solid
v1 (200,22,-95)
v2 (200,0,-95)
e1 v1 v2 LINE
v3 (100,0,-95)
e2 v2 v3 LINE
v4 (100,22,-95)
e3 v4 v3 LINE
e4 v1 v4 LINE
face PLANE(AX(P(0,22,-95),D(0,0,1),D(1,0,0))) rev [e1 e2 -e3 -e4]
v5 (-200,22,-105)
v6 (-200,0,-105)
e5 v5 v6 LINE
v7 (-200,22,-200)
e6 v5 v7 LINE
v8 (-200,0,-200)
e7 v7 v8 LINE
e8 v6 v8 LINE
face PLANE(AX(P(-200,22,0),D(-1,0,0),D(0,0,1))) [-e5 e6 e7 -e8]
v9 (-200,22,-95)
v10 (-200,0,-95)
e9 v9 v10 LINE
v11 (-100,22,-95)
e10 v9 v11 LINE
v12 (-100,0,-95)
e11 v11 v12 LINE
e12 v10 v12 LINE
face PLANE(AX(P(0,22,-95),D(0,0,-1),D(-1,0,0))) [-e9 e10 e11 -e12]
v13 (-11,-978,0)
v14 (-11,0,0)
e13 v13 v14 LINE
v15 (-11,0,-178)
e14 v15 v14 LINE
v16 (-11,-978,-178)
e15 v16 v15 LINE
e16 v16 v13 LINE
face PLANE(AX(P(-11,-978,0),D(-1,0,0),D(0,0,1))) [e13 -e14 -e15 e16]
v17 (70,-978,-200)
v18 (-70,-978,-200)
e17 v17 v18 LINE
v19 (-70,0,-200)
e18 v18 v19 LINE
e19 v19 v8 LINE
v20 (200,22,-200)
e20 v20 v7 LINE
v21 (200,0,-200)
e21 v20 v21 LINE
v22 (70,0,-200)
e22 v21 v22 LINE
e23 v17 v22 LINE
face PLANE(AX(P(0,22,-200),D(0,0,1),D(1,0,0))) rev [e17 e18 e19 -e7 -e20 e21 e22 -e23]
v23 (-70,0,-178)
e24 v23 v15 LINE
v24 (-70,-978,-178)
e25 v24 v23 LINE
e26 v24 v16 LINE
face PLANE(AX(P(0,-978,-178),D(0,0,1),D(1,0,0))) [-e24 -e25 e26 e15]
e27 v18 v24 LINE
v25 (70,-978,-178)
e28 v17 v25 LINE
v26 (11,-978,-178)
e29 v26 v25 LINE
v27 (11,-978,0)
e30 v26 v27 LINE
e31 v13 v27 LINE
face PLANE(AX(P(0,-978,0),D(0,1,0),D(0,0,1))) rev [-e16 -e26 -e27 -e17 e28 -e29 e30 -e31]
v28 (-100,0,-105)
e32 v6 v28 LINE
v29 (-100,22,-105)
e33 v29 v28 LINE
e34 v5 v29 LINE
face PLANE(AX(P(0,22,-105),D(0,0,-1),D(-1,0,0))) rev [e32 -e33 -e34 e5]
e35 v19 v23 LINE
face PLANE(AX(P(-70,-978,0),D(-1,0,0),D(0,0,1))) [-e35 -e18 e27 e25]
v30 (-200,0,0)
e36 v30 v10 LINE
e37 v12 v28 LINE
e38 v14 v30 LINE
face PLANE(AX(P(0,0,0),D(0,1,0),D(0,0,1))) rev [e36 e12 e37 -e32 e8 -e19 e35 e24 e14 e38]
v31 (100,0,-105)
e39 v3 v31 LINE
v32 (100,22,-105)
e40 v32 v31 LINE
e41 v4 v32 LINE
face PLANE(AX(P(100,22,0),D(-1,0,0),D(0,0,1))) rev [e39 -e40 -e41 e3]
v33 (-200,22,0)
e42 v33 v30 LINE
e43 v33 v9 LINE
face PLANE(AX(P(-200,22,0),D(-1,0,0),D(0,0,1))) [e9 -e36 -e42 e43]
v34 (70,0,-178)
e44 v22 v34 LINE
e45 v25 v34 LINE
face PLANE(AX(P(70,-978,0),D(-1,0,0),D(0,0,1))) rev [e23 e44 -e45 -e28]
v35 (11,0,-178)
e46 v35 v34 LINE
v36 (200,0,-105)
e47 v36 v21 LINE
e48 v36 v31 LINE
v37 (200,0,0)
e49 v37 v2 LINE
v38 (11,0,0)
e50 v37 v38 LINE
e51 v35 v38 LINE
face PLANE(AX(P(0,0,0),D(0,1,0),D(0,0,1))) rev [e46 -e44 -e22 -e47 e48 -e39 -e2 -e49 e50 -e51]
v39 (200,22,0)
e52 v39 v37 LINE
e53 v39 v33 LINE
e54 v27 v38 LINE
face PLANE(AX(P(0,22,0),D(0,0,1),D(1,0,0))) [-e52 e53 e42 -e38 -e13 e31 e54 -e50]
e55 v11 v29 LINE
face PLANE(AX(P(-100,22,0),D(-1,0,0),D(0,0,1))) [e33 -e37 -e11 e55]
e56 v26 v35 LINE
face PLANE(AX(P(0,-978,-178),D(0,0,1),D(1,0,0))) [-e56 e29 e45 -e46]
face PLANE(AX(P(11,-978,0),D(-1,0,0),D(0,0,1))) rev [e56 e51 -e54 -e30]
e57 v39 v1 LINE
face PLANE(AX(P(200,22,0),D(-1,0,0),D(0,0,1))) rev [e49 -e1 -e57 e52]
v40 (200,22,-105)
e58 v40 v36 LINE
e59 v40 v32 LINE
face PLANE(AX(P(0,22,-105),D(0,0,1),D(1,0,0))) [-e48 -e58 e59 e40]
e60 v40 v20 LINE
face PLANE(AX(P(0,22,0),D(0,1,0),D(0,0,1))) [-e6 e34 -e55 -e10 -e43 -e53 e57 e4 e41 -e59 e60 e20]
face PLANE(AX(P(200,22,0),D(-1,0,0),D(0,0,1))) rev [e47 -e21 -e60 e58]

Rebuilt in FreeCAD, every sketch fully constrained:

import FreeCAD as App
import Part
import Sketcher

V = App.Vector

doc = App.newDocument("Part")
params = doc.addObject("Spreadsheet::Sheet", "Params")
for row, (alias, value) in enumerate([
    ("sketch1_width", "200 mm"),
    ("sketch1_width2", "100 mm"),
    ("sketch1_height", "95 mm"),
    ("pad1_length", "22 mm"),
    ("sketch2_width", "140 mm"),
    ("sketch2_width2", "59 mm"),
    ("sketch2_height", "178 mm"),
    ("pad2_length", "1000 mm"),
], start=1):
    params.set(f"A{row}", alias)
    params.set(f"B{row}", "=" + value)
    params.setAlias(f"B{row}", alias)

body = doc.addObject("PartDesign::Body", "Body")

sketch1 = doc.addObject("Sketcher::SketchObject", "Sketch")
body.addObject(sketch1)
sketch1.AttachmentSupport = (doc.XZ_Plane, [""])
sketch1.MapMode = "FlatFace"
sketch1.addGeometry([
    Part.LineSegment(V(-200, 0, 0), V(0, 0, 0)),
    Part.LineSegment(V(0, 0, 0), V(0, -200, 0)),
    Part.LineSegment(V(0, -200, 0), V(-200, -200, 0)),
    Part.LineSegment(V(-200, -200, 0), V(-200, -105, 0)),
    Part.LineSegment(V(-200, -105, 0), V(-100, -105, 0)),
    Part.LineSegment(V(-100, -105, 0), V(-100, -95, 0)),
    Part.LineSegment(V(-100, -95, 0), V(-200, -95, 0)),
    Part.LineSegment(V(-200, -95, 0), V(-200, 0, 0)),
], False)
sketch1.addConstraint([
    Sketcher.Constraint("Coincident", 0, 2, 1, 1),
    Sketcher.Constraint("Coincident", 1, 2, 2, 1),
    Sketcher.Constraint("Coincident", 2, 2, 3, 1),
    Sketcher.Constraint("Coincident", 3, 2, 4, 1),
    Sketcher.Constraint("Coincident", 4, 2, 5, 1),
    Sketcher.Constraint("Coincident", 5, 2, 6, 1),
    Sketcher.Constraint("Coincident", 6, 2, 7, 1),
    Sketcher.Constraint("Coincident", 7, 2, 0, 1),
    Sketcher.Constraint("Horizontal", 0),
    Sketcher.Constraint("Vertical", 1),
    Sketcher.Constraint("Horizontal", 2),
    Sketcher.Constraint("Vertical", 3),
    Sketcher.Constraint("Horizontal", 4),
    Sketcher.Constraint("Vertical", 5),
    Sketcher.Constraint("Horizontal", 6),
    Sketcher.Constraint("Vertical", 7),
    Sketcher.Constraint("Coincident", 0, 2, -1, 1),
    Sketcher.Constraint("Vertical", 3, 2, 6, 2),
    Sketcher.Constraint("Equal", 2, 1),
    Sketcher.Constraint("Equal", 3, 7),
    Sketcher.Constraint("DistanceX", 0, 1, 0, 2, 200.0),
    Sketcher.Constraint("DistanceX", 4, 1, 4, 2, 100.0),
    Sketcher.Constraint("DistanceY", 3, 1, 3, 2, 95.0),
])
sketch1.setExpression("Constraints[20]", "Params.sketch1_width")
sketch1.setExpression("Constraints[21]", "Params.sketch1_width2")
sketch1.setExpression("Constraints[22]", "Params.sketch1_height")
pad1 = doc.addObject("PartDesign::Pad", "Pad")
body.addObject(pad1)
pad1.Profile = sketch1
pad1.setExpression("Length", "Params.pad1_length")
pad1.Reversed = True
doc.recompute()

mirrored = doc.addObject("PartDesign::Mirrored", "Mirrored")
body.addObject(mirrored)
mirrored.Originals = [pad1]
mirrored.MirrorPlane = (doc.YZ_Plane, [""])
body.Tip = mirrored

sketch2 = doc.addObject("Sketcher::SketchObject", "Sketch001")
body.addObject(sketch2)
sketch2.AttachmentSupport = (doc.XZ_Plane, [""])
sketch2.MapMode = "FlatFace"
sketch2.AttachmentOffset = App.Placement(V(0, 0, -22), App.Rotation())
sketch2.addGeometry([
    Part.LineSegment(V(70, -200, 0), V(-70, -200, 0)),
    Part.LineSegment(V(-70, -200, 0), V(-70, -178, 0)),
    Part.LineSegment(V(-70, -178, 0), V(-11, -178, 0)),
    Part.LineSegment(V(-11, -178, 0), V(-11, 0, 0)),
    Part.LineSegment(V(-11, 0, 0), V(11, 0, 0)),
    Part.LineSegment(V(11, 0, 0), V(11, -178, 0)),
    Part.LineSegment(V(11, -178, 0), V(70, -178, 0)),
    Part.LineSegment(V(70, -178, 0), V(70, -200, 0)),
], False)
sketch2.addConstraint([
    Sketcher.Constraint("Coincident", 0, 2, 1, 1),
    Sketcher.Constraint("Coincident", 1, 2, 2, 1),
    Sketcher.Constraint("Coincident", 2, 2, 3, 1),
    Sketcher.Constraint("Coincident", 3, 2, 4, 1),
    Sketcher.Constraint("Coincident", 4, 2, 5, 1),
    Sketcher.Constraint("Coincident", 5, 2, 6, 1),
    Sketcher.Constraint("Coincident", 6, 2, 7, 1),
    Sketcher.Constraint("Coincident", 7, 2, 0, 1),
    Sketcher.Constraint("Horizontal", 0),
    Sketcher.Constraint("Vertical", 1),
    Sketcher.Constraint("Horizontal", 2),
    Sketcher.Constraint("Vertical", 3),
    Sketcher.Constraint("Horizontal", 4),
    Sketcher.Constraint("Vertical", 5),
    Sketcher.Constraint("Horizontal", 6),
    Sketcher.Constraint("Vertical", 7),
    Sketcher.Constraint("Symmetric", 3, 2, 4, 2, -1, 1),
    Sketcher.Constraint("Symmetric", 1, 2, 6, 2, -2),
    Sketcher.Constraint("Equal", 4, 1),
    Sketcher.Constraint("DistanceX", 0, 2, 0, 1, 140.0),
    Sketcher.Constraint("DistanceX", 2, 1, 2, 2, 59.0),
    Sketcher.Constraint("DistanceY", 3, 1, 3, 2, 178.0),
])
sketch2.setExpression("Constraints[19]", "Params.sketch2_width")
sketch2.setExpression("Constraints[20]", "Params.sketch2_width2")
sketch2.setExpression("Constraints[21]", "Params.sketch2_height")
pad2 = doc.addObject("PartDesign::Pad", "Pad001")
body.addObject(pad2)
pad2.Profile = sketch2
pad2.setExpression("Length", "Params.pad2_length")

doc.recompute()
